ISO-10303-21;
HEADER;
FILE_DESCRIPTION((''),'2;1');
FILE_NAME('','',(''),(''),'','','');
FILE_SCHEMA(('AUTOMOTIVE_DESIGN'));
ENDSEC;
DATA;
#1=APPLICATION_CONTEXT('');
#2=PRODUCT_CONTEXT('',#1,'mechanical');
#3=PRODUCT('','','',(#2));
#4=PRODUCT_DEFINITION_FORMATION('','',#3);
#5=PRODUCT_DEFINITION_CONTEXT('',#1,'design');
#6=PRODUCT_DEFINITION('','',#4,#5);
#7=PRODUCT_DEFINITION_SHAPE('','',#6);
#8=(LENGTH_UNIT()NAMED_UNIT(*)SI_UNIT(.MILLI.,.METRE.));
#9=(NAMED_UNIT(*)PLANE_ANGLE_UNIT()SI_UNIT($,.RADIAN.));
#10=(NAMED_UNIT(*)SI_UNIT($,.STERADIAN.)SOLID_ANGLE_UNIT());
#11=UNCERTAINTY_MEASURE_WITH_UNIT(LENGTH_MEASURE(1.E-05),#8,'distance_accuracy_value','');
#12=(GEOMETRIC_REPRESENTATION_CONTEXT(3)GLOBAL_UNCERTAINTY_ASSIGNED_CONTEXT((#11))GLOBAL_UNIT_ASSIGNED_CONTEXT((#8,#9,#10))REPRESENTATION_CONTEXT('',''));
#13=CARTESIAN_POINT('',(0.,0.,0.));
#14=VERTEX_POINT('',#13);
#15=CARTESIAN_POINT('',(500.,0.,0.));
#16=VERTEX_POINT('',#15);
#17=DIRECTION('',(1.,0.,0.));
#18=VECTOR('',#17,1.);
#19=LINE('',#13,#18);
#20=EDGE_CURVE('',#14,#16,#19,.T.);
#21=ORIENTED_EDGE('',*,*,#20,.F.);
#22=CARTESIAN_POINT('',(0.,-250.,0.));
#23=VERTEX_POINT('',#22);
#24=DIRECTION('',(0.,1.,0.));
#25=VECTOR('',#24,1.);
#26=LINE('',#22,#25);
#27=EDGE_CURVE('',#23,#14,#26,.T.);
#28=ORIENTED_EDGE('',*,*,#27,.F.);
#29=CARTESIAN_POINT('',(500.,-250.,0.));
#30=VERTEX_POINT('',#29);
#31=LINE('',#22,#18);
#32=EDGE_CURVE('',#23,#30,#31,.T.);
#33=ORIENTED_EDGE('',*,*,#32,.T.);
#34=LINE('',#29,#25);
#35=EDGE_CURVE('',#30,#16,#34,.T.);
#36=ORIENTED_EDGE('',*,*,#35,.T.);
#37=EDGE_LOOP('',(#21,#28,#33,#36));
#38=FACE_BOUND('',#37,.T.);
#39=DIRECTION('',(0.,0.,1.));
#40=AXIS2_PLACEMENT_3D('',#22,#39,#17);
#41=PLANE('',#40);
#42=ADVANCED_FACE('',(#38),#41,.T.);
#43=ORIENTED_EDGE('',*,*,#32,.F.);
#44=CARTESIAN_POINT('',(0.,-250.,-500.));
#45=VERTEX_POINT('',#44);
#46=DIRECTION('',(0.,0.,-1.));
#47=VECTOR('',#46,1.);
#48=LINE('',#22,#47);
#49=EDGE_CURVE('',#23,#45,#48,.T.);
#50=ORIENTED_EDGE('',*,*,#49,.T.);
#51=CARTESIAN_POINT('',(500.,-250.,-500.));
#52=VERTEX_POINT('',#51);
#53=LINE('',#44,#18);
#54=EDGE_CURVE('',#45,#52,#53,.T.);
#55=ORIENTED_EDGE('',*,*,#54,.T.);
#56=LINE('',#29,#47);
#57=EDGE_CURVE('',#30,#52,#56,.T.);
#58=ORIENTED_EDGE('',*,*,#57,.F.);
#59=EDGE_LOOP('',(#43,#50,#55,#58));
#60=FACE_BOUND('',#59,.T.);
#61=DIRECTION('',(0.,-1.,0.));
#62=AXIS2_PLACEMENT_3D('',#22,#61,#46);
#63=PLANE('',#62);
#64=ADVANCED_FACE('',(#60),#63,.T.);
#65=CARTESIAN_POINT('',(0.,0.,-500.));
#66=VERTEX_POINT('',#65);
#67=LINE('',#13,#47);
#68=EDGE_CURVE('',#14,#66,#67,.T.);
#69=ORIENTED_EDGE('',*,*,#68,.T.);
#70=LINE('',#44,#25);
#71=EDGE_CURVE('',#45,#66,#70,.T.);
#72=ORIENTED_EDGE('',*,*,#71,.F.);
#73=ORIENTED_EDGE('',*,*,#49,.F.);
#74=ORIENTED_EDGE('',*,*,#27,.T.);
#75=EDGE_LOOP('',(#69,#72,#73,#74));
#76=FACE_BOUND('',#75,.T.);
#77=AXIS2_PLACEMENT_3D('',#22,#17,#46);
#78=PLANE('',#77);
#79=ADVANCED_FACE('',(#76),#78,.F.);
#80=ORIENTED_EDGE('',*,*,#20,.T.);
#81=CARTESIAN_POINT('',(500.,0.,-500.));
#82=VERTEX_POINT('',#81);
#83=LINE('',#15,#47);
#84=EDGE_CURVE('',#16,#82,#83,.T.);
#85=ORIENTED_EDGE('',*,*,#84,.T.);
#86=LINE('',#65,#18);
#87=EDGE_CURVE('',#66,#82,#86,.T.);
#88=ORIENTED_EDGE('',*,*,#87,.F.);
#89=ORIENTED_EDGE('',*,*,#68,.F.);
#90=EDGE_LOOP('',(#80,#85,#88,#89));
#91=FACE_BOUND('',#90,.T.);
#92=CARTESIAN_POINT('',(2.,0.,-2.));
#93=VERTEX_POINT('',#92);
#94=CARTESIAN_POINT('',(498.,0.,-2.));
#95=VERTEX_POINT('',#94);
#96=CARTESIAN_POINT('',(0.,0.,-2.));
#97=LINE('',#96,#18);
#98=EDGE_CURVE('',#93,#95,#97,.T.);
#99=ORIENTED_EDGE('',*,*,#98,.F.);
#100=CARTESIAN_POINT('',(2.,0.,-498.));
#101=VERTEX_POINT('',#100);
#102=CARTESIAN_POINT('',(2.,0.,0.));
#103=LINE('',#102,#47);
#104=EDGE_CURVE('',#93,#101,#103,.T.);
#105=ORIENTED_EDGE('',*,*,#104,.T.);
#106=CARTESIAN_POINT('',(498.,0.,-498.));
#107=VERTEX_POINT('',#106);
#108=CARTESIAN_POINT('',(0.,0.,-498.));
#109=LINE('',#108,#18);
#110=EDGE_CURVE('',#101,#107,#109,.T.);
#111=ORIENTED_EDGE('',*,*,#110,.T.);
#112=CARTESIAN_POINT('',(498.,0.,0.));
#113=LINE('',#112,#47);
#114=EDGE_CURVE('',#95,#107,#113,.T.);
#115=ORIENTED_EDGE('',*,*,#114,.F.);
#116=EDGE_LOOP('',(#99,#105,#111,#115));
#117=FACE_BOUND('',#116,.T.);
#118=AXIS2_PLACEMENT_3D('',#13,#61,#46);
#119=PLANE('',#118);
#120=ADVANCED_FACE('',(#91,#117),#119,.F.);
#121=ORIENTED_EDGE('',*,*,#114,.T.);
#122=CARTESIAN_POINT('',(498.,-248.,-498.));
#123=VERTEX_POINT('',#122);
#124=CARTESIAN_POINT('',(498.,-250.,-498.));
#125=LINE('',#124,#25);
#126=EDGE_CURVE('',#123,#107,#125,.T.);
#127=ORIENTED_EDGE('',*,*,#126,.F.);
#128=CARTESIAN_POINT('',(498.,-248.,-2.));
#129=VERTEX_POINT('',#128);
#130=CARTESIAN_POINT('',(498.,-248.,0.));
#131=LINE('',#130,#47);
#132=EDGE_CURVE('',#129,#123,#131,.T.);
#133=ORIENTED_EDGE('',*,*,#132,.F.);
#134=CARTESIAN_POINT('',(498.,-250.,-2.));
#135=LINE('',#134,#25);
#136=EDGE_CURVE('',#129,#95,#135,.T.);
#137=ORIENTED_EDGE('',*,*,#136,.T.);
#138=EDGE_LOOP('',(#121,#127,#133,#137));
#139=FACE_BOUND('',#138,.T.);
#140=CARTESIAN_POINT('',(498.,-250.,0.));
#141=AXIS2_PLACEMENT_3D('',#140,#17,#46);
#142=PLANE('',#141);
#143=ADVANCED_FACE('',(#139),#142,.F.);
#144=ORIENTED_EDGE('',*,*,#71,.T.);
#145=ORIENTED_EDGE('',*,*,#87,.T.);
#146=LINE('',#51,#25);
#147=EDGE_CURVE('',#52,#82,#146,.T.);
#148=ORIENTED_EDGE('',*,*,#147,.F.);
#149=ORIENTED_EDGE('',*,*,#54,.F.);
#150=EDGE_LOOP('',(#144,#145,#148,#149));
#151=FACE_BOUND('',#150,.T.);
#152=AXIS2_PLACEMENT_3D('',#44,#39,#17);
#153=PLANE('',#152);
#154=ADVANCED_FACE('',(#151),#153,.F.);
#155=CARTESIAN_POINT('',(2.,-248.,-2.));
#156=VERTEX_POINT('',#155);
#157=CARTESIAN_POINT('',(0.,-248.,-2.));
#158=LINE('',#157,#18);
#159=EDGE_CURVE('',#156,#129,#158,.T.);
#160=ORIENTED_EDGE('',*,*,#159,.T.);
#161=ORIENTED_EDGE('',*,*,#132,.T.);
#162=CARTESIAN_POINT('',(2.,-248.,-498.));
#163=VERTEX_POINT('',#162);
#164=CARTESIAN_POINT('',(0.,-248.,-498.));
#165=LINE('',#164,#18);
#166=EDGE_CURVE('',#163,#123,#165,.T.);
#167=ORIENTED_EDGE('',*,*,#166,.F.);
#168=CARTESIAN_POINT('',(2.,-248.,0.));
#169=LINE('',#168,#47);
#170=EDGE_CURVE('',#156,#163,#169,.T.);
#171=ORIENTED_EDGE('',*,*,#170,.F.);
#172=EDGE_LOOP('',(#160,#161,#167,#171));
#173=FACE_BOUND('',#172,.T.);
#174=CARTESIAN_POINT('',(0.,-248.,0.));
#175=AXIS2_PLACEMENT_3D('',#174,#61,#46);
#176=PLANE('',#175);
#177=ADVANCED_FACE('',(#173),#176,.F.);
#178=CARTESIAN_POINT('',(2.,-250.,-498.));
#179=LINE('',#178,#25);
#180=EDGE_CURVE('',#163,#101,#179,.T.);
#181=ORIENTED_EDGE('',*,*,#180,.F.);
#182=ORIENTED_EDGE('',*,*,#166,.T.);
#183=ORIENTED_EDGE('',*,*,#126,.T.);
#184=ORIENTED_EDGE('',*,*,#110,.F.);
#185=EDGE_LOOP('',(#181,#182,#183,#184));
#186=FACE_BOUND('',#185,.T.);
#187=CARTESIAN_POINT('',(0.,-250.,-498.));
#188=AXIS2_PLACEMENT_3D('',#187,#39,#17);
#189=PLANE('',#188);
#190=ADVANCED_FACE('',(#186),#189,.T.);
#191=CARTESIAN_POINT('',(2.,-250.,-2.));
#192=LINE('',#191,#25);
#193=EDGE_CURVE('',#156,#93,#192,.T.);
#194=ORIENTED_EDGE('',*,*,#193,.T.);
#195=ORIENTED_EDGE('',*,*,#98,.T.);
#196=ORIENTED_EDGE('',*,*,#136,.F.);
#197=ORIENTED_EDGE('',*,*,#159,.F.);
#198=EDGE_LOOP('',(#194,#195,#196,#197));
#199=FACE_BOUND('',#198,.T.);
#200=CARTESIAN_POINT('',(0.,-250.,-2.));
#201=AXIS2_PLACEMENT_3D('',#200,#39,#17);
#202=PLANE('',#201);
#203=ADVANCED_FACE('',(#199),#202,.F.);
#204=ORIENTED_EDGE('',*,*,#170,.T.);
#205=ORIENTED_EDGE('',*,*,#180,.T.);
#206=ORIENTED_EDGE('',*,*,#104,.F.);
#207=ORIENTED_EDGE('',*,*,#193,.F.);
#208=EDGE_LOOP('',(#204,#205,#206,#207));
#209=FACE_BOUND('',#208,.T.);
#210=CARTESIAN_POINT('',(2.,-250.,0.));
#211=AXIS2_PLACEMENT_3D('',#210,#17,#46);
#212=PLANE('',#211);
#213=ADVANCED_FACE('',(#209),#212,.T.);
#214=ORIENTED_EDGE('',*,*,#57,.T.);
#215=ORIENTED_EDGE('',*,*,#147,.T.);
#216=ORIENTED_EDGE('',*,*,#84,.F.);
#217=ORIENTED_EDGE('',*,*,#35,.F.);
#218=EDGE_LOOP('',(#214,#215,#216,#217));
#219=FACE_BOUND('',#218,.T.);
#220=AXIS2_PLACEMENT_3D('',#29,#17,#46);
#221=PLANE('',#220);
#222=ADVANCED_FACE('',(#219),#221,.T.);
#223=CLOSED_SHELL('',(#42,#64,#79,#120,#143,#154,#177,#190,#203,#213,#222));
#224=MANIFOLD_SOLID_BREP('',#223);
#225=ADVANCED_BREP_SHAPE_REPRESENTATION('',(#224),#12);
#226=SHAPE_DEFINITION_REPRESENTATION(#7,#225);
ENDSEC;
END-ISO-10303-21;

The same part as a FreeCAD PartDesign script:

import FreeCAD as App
import Part
import Sketcher

V = App.Vector


def faces_at(feature, points):
    """Names of the faces that lie closest to the given points."""
    faces = feature.Shape.Faces
    near = lambda p: min(range(len(faces)), key=lambda i: faces[i].distToShape(Part.Vertex(*p))[0])
    return sorted({f"Face{near(p) + 1}" for p in points})

doc = App.newDocument("Part")
body = doc.addObject("PartDesign::Body", "Body")

# Sketch on XZ plane
sketch1 = body.newObject("Sketcher::SketchObject", "Sketch")
sketch1.AttachmentSupport = (doc.getObject("XZ_Plane"), [""])
sketch1.MapMode = "FlatFace"
sketch1.addGeometry(Part.LineSegment(V(0, -500, 0), V(0, 0, 0)), False)
sketch1.addGeometry(Part.LineSegment(V(0, 0, 0), V(500, 0, 0)), False)
sketch1.addGeometry(Part.LineSegment(V(500, 0, 0), V(500, -500, 0)), False)
sketch1.addGeometry(Part.LineSegment(V(500, -500, 0), V(0, -500, 0)), False)
sketch1.addConstraint(Sketcher.Constraint("Coincident", 0, 2, 1, 1))
sketch1.addConstraint(Sketcher.Constraint("Coincident", 1, 2, 2, 1))
sketch1.addConstraint(Sketcher.Constraint("Coincident", 2, 2, 3, 1))
sketch1.addConstraint(Sketcher.Constraint("Coincident", 3, 2, 0, 1))
sketch1.addConstraint(Sketcher.Constraint("Vertical", 0))
sketch1.addConstraint(Sketcher.Constraint("Horizontal", 1))
sketch1.addConstraint(Sketcher.Constraint("Vertical", 2))
sketch1.addConstraint(Sketcher.Constraint("Horizontal", 3))
sketch1.addConstraint(Sketcher.Constraint("Coincident", 0, 2, -1, 1))
sketch1.addConstraint(Sketcher.Constraint("Equal", 3, 0))
sketch1.addConstraint(Sketcher.Constraint("DistanceX", 1, 1, 1, 2, 500.0))
pad1 = body.newObject("PartDesign::Pad", "Pad")
pad1.Profile = sketch1
pad1.Length = 250
doc.recompute()

thickness = body.newObject("PartDesign::Thickness", "Thickness")
thickness.Base = (pad1, faces_at(pad1, [(250, 0, -250)]))
thickness.Value = 2
thickness.Reversed = True
thickness.Join = "Intersection"

doc.recompute()
